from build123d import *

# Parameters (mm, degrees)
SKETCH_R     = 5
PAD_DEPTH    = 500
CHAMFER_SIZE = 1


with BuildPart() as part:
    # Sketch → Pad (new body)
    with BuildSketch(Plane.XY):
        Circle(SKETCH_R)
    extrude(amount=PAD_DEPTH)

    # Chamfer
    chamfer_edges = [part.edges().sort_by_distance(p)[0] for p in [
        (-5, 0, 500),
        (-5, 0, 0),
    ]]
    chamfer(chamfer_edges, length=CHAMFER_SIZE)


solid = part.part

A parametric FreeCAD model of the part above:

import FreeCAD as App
import Part
import Sketcher
Q = App.Units.Quantity


def edges_at(feature, points):
    """Names of the edges that pass closest to the given points."""
    edges = feature.Shape.Edges
    near = lambda p: min(range(len(edges)), key=lambda i: edges[i].distToShape(Part.Vertex(*p))[0])
    return sorted({f"Edge{near(p) + 1}" for p in points})

doc = App.newDocument("Part")
params = doc.addObject("Spreadsheet::Sheet", "Params")
for row, (alias, value) in enumerate([
    ("sketch1_diameter", "10 mm"),
    ("pad1_length", "500 mm"),
    ("chamfer_size", "1 mm"),
], start=1):
    params.set(f"A{row}", alias)
    params.set(f"B{row}", "=" + value)
    params.setAlias(f"B{row}", alias)

body = doc.addObject("PartDesign::Body", "Body")

# Sketch on XY plane
sketch1 = doc.addObject("Sketcher::SketchObject", "Sketch")
body.addObject(sketch1)
sketch1.AttachmentSupport = (doc.XY_Plane, [""])
sketch1.MapMode = "FlatFace"
sketch1.addGeometry(Part.Circle(App.Vector(0, 0, 0), App.Vector(0, 0, 1), 5), False)
sketch1.addConstraint([
    Sketcher.Constraint("Coincident", 0, 3, -1, 1),
    Sketcher.Constraint("Diameter", 0, Q("10 mm")),
])
sketch1.setExpression("Constraints[1]", "Params.sketch1_diameter")
pad1 = doc.addObject("PartDesign::Pad", "Pad")
body.addObject(pad1)
pad1.Profile = sketch1
pad1.setExpression("Length", "Params.pad1_length")
doc.recompute()

chamfer = doc.addObject("PartDesign::Chamfer", "Chamfer")
body.addObject(chamfer)
chamfer.Base = (pad1, edges_at(pad1, [(-5, 0, 500), (-5, 0, 0)]))
chamfer.setExpression("Size", "Params.chamfer_size")

doc.recompute()
